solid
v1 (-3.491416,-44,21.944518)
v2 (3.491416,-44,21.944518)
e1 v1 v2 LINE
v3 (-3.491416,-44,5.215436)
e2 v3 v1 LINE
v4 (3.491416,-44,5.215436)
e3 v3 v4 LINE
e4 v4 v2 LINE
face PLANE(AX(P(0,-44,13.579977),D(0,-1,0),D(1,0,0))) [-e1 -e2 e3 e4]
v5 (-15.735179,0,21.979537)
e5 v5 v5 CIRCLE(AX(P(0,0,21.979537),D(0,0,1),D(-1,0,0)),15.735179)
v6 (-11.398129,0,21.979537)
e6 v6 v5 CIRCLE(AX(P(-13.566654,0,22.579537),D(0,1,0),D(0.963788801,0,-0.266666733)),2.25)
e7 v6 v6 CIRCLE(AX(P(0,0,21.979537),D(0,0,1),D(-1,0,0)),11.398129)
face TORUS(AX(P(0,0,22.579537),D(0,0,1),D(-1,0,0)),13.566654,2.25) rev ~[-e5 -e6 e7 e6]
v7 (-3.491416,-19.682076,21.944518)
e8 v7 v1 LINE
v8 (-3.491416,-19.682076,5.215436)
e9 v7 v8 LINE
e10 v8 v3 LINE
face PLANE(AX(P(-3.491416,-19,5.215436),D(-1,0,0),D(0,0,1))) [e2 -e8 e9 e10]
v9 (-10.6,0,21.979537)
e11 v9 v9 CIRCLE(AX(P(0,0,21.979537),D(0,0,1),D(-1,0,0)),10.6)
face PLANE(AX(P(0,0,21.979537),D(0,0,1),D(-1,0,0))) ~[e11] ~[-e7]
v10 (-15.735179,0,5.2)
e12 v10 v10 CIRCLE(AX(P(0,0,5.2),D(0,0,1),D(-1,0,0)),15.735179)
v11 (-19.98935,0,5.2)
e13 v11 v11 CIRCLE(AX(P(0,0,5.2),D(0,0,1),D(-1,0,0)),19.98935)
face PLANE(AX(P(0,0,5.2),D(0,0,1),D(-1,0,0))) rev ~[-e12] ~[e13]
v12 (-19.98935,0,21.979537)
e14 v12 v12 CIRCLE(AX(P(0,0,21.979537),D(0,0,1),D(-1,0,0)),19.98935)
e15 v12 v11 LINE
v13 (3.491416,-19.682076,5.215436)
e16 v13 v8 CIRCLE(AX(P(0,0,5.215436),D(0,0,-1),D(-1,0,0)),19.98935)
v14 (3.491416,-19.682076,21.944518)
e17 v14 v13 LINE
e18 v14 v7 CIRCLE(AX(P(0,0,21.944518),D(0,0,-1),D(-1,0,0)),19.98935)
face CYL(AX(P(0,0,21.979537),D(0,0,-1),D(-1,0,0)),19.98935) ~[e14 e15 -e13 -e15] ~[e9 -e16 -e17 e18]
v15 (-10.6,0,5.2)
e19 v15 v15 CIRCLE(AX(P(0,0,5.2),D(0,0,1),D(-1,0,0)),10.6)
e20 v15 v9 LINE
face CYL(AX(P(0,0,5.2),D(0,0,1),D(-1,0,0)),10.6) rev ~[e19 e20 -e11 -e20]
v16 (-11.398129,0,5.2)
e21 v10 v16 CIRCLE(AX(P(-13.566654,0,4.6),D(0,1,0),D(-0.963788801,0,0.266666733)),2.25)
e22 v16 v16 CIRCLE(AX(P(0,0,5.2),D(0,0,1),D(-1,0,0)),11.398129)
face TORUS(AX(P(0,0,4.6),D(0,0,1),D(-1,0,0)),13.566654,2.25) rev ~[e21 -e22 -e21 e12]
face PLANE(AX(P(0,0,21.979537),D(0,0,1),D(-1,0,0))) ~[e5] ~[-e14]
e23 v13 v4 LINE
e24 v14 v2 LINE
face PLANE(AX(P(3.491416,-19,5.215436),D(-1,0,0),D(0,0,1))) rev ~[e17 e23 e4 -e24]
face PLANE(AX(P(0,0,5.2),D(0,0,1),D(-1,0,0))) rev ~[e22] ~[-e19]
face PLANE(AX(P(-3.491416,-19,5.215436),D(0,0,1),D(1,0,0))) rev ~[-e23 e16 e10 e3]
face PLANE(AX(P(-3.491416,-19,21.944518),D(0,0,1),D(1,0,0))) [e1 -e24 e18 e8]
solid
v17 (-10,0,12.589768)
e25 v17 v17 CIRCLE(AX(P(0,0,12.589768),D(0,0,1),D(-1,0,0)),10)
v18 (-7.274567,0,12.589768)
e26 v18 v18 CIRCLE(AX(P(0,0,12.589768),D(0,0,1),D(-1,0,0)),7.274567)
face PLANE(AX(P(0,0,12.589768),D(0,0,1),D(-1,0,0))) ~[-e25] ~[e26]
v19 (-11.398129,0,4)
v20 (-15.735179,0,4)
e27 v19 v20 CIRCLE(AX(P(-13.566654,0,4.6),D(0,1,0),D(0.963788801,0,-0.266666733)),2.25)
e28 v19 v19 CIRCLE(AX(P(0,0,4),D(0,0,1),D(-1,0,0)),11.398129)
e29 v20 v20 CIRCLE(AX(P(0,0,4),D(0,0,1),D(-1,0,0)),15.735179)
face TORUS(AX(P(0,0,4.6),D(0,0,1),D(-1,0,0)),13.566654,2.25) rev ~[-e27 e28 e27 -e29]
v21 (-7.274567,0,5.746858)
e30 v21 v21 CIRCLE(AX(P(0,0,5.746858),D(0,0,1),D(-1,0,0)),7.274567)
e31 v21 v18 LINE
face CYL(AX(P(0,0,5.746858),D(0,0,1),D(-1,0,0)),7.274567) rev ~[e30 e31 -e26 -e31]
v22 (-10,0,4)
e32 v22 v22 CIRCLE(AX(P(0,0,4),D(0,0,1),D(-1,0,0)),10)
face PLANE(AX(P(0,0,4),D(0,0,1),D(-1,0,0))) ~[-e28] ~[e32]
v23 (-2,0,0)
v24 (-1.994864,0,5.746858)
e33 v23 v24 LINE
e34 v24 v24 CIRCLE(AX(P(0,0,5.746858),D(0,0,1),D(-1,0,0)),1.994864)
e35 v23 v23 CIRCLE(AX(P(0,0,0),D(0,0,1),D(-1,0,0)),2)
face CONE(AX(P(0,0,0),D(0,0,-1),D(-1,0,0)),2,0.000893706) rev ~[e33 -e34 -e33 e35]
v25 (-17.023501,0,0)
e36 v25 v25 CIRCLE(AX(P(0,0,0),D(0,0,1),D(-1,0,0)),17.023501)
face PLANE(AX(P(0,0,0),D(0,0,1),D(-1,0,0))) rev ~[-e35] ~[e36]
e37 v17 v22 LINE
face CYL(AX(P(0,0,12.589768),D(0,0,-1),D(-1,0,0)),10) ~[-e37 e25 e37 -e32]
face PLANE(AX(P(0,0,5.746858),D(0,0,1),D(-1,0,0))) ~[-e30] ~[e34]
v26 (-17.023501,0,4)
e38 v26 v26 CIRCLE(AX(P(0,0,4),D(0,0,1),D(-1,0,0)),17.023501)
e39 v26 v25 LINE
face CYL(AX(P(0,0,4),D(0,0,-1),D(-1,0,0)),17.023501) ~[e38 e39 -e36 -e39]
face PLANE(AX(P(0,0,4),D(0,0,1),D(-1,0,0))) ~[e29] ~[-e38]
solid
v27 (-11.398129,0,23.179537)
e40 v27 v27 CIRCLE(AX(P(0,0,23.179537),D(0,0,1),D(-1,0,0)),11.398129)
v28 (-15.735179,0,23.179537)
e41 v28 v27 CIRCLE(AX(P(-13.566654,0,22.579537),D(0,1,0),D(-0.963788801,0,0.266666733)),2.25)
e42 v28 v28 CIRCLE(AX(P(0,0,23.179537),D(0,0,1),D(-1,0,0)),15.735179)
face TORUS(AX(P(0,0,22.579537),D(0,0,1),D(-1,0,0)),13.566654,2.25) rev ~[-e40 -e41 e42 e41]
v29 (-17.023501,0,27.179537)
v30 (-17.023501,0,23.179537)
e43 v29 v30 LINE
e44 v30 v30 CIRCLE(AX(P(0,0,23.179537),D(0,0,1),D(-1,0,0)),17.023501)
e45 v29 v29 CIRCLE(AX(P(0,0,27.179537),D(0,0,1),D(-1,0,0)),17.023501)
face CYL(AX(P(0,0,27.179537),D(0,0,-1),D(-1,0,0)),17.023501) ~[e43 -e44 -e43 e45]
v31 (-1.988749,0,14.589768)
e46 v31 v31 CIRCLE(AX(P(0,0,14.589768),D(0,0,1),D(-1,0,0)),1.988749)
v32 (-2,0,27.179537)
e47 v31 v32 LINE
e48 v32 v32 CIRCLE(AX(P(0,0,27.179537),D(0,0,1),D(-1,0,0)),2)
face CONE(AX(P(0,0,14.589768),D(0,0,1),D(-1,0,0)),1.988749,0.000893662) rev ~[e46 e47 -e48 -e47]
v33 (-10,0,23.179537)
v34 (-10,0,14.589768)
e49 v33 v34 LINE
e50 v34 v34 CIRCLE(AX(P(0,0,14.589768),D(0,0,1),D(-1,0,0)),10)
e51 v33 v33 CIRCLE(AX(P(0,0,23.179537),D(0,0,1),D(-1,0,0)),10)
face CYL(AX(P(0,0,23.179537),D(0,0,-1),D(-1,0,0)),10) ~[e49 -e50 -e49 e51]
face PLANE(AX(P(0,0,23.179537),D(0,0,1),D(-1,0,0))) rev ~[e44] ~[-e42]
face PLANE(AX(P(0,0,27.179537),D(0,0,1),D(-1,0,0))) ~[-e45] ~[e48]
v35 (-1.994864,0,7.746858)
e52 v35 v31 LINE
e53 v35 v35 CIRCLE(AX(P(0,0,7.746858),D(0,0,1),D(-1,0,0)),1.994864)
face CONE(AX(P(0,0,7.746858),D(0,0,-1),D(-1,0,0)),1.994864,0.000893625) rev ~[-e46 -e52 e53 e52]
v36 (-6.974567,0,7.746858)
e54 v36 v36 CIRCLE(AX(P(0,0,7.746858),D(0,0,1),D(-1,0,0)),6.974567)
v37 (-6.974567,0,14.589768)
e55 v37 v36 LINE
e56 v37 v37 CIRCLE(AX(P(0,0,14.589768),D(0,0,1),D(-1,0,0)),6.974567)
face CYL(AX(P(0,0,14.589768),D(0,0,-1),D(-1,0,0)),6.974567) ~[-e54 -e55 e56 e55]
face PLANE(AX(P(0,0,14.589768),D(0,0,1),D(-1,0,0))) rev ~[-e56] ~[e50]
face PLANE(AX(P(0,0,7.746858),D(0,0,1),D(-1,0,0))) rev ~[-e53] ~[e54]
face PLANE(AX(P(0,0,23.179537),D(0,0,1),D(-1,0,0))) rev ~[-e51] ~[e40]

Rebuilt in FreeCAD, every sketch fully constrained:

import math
import FreeCAD as App
import Part
import Sketcher
from FreeCAD import Vector


def add_polygon(sketch, points):
    """Adds a closed chain of lines whose ends are joined by coincident constraints."""
    first, n = sketch.GeometryCount, len(points)
    for a, b in zip(points, points[1:] + points[:1]):
        sketch.addGeometry(Part.LineSegment(App.Vector(*a, 0), App.Vector(*b, 0)), False)
    for i in range(n):
        sketch.addConstraint(Sketcher.Constraint("Coincident", first + i, 2, first + (i + 1) % n, 1))

doc = App.newDocument("Part")
body = doc.addObject("PartDesign::Body", "Body")
body.AllowCompound = True

sketch1 = body.newObject("Sketcher::SketchObject", "Sketch")
sketch1.AttachmentSupport = (doc.getObject("XZ_Plane"), [""])
sketch1.MapMode = "FlatFace"
sketch1.addGeometry(Part.LineSegment(Vector(-10, 14.589768, 0), Vector(-6.974567, 14.589768, 0)), False)
sketch1.addGeometry(Part.LineSegment(Vector(-6.974567, 14.589768, 0), Vector(-6.974567, 7.746858, 0)), False)
sketch1.addGeometry(Part.LineSegment(Vector(-6.974567, 7.746858, 0), Vector(-1.994864, 7.746858, 0)), False)
sketch1.addGeometry(Part.LineSegment(Vector(-1.994864, 7.746858, 0), Vector(-1.988749, 14.589768, 0)), False)
sketch1.addGeometry(Part.LineSegment(Vector(-1.988749, 14.589768, 0), Vector(-2, 27.179537, 0)), False)
sketch1.addGeometry(Part.LineSegment(Vector(-2, 27.179537, 0), Vector(-17.023501, 27.179537, 0)), False)
sketch1.addGeometry(Part.LineSegment(Vector(-17.023501, 27.179537, 0), Vector(-17.023501, 23.179537, 0)), False)
sketch1.addGeometry(Part.LineSegment(Vector(-17.023501, 23.179537, 0), Vector(-15.735179, 23.179537, 0)), False)
sketch1.addGeometry(Part.ArcOfCircle(Part.Circle(Vector(-13.566654, 22.579537, 0), Vector(0, 0, 1), 2.25), math.radians(15.466014), math.radians(164.533986)), False)
sketch1.addGeometry(Part.LineSegment(Vector(-11.398129, 23.179537, 0), Vector(-10, 23.179537, 0)), False)
sketch1.addGeometry(Part.LineSegment(Vector(-10, 23.179537, 0), Vector(-10, 14.589768, 0)), False)
sketch1.addGeometry(Part.ArcOfCircle(Part.Circle(Vector(-13.566654, 4.6, 0), Vector(0, 0, 1), 2.25), math.radians(15.466014), math.radians(164.533986)), False)
sketch1.addGeometry(Part.LineSegment(Vector(-11.398129, 5.2, 0), Vector(-10.6, 5.2, 0)), False)
sketch1.addGeometry(Part.LineSegment(Vector(-10.6, 5.2, 0), Vector(-10.6, 21.979537, 0)), False)
sketch1.addGeometry(Part.LineSegment(Vector(-10.6, 21.979537, 0), Vector(-11.398129, 21.979537, 0)), False)
sketch1.addGeometry(Part.ArcOfCircle(Part.Circle(Vector(-13.566654, 22.579537, 0), Vector(0, 0, 1), 2.25), math.radians(-164.533986), math.radians(-15.466014)), False)
sketch1.addGeometry(Part.LineSegment(Vector(-15.735179, 21.979537, 0), Vector(-19.98935, 21.979537, 0)), False)
sketch1.addGeometry(Part.LineSegment(Vector(-19.98935, 21.979537, 0), Vector(-19.98935, 5.2, 0)), False)
sketch1.addGeometry(Part.LineSegment(Vector(-19.98935, 5.2, 0), Vector(-15.735179, 5.2, 0)), False)
sketch1.addGeometry(Part.LineSegment(Vector(-17.023501, 4, 0), Vector(-17.023501, 0, 0)), False)
sketch1.addGeometry(Part.LineSegment(Vector(-17.023501, 0, 0), Vector(-2, 0, 0)), False)
sketch1.addGeometry(Part.LineSegment(Vector(-2, 0, 0), Vector(-1.994864, 5.746858, 0)), False)
sketch1.addGeometry(Part.LineSegment(Vector(-1.994864, 5.746858, 0), Vector(-7.274567, 5.746858, 0)), False)
sketch1.addGeometry(Part.LineSegment(Vector(-7.274567, 5.746858, 0), Vector(-7.274567, 12.589768, 0)), False)
sketch1.addGeometry(Part.LineSegment(Vector(-7.274567, 12.589768, 0), Vector(-10, 12.589768, 0)), False)
sketch1.addGeometry(Part.LineSegment(Vector(-10, 12.589768, 0), Vector(-10, 4, 0)), False)
sketch1.addGeometry(Part.LineSegment(Vector(-10, 4, 0), Vector(-11.398129, 4, 0)), False)
sketch1.addGeometry(Part.ArcOfCircle(Part.Circle(Vector(-13.566654, 4.6, 0), Vector(0, 0, 1), 2.25), math.radians(-164.533986), math.radians(-15.466014)), False)
sketch1.addGeometry(Part.LineSegment(Vector(-15.735179, 4, 0), Vector(-17.023501, 4, 0)), False)
sketch1.addConstraint(Sketcher.Constraint("Coincident", 0, 2, 1, 1))
sketch1.addConstraint(Sketcher.Constraint("Coincident", 1, 2, 2, 1))
sketch1.addConstraint(Sketcher.Constraint("Coincident", 2, 2, 3, 1))
sketch1.addConstraint(Sketcher.Constraint("Coincident", 3, 2, 4, 1))
sketch1.addConstraint(Sketcher.Constraint("Coincident", 4, 2, 5, 1))
sketch1.addConstraint(Sketcher.Constraint("Coincident", 5, 2, 6, 1))
sketch1.addConstraint(Sketcher.Constraint("Coincident", 6, 2, 7, 1))
sketch1.addConstraint(Sketcher.Constraint("Coincident", 7, 2, 8, 2))
sketch1.addConstraint(Sketcher.Constraint("Coincident", 8, 1, 9, 1))
sketch1.addConstraint(Sketcher.Constraint("Coincident", 9, 2, 10, 1))
sketch1.addConstraint(Sketcher.Constraint("Coincident", 10, 2, 0, 1))
sketch1.addConstraint(Sketcher.Constraint("Coincident", 11, 1, 12, 1))
sketch1.addConstraint(Sketcher.Constraint("Coincident", 12, 2, 13, 1))
sketch1.addConstraint(Sketcher.Constraint("Coincident", 13, 2, 14, 1))
sketch1.addConstraint(Sketcher.Constraint("Coincident", 14, 2, 15, 2))
sketch1.addConstraint(Sketcher.Constraint("Coincident", 15, 1, 16, 1))
sketch1.addConstraint(Sketcher.Constraint("Coincident", 16, 2, 17, 1))
sketch1.addConstraint(Sketcher.Constraint("Coincident", 17, 2, 18, 1))
sketch1.addConstraint(Sketcher.Constraint("Coincident", 18, 2, 11, 2))
sketch1.addConstraint(Sketcher.Constraint("Coincident", 19, 2, 20, 1))
sketch1.addConstraint(Sketcher.Constraint("Coincident", 20, 2, 21, 1))
sketch1.addConstraint(Sketcher.Constraint("Coincident", 21, 2, 22, 1))
sketch1.addConstraint(Sketcher.Constraint("Coincident", 22, 2, 23, 1))
sketch1.addConstraint(Sketcher.Constraint("Coincident", 23, 2, 24, 1))
sketch1.addConstraint(Sketcher.Constraint("Coincident", 24, 2, 25, 1))
sketch1.addConstraint(Sketcher.Constraint("Coincident", 25, 2, 26, 1))
sketch1.addConstraint(Sketcher.Constraint("Coincident", 26, 2, 27, 2))
sketch1.addConstraint(Sketcher.Constraint("Coincident", 27, 1, 28, 1))
sketch1.addConstraint(Sketcher.Constraint("Coincident", 28, 2, 19, 1))
sketch1.addConstraint(Sketcher.Constraint("Horizontal", 0))
sketch1.addConstraint(Sketcher.Constraint("Vertical", 1))
sketch1.addConstraint(Sketcher.Constraint("Horizontal", 2))
sketch1.addConstraint(Sketcher.Constraint("Horizontal", 5))
sketch1.addConstraint(Sketcher.Constraint("Vertical", 6))
sketch1.addConstraint(Sketcher.Constraint("Horizontal", 7))
sketch1.addConstraint(Sketcher.Constraint("Horizontal", 9))
sketch1.addConstraint(Sketcher.Constraint("Vertical", 10))
sketch1.addConstraint(Sketcher.Constraint("Horizontal", 12))
sketch1.addConstraint(Sketcher.Constraint("Vertical", 13))
sketch1.addConstraint(Sketcher.Constraint("Horizontal", 14))
sketch1.addConstraint(Sketcher.Constraint("Horizontal", 16))
sketch1.addConstraint(Sketcher.Constraint("Vertical", 17))
sketch1.addConstraint(Sketcher.Constraint("Horizontal", 18))
sketch1.addConstraint(Sketcher.Constraint("Vertical", 19))
sketch1.addConstraint(Sketcher.Constraint("Horizontal", 20))
sketch1.addConstraint(Sketcher.Constraint("Horizontal", 22))
sketch1.addConstraint(Sketcher.Constraint("Vertical", 23))
sketch1.addConstraint(Sketcher.Constraint("Horizontal", 24))
sketch1.addConstraint(Sketcher.Constraint("Vertical", 25))
sketch1.addConstraint(Sketcher.Constraint("Horizontal", 26))
sketch1.addConstraint(Sketcher.Constraint("Horizontal", 28))
sketch1.addConstraint(Sketcher.Constraint("Coincident", 15, 3, 8, 3))
sketch1.addConstraint(Sketcher.Constraint("Coincident", 27, 3, 11, 3))
sketch1.addConstraint(Sketcher.Constraint("Equal", 8, 11))
sketch1.addConstraint(Sketcher.Constraint("Equal", 11, 15))
sketch1.addConstraint(Sketcher.Constraint("Equal", 15, 27))
sketch1.addConstraint(Sketcher.Constraint("PointOnObject", 19, 2, -1))
sketch1.addConstraint(Sketcher.Constraint("Parallel", 3, 21))
sketch1.addConstraint(Sketcher.Constraint("Horizontal", 0, 2, 3, 2))
sketch1.addConstraint(Sketcher.Constraint("Horizontal", 7, 2, 8, 1))
sketch1.addConstraint(Sketcher.Constraint("Horizontal", 14, 2, 15, 1))
sketch1.addConstraint(Sketcher.Constraint("Horizontal", 12, 2, 17, 2))
sketch1.addConstraint(Sketcher.Constraint("Horizontal", 26, 2, 27, 1))
sketch1.addConstraint(Sketcher.Constraint("Vertical", 8, 3, 11, 3))
sketch1.addConstraint(Sketcher.Constraint("Vertical", 8, 1, 11, 1))
sketch1.addConstraint(Sketcher.Constraint("Vertical", 11, 1, 14, 2))
sketch1.addConstraint(Sketcher.Constraint("Vertical", 6, 2, 19, 2))
sketch1.addConstraint(Sketcher.Constraint("Vertical", 4, 2, 20, 2))
sketch1.addConstraint(Sketcher.Constraint("Vertical", 2, 2, 21, 2))
sketch1.addConstraint(Sketcher.Constraint("Vertical", 10, 2, 24, 2))
sketch1.addConstraint(Sketcher.Constraint("Vertical", 14, 2, 26, 2))
sketch1.addConstraint(Sketcher.Constraint("Equal", 6, 19))
sketch1.addConstraint(Sketcher.Constraint("Equal", 1, 23))
sketch1.addConstraint(Sketcher.Constraint("Equal", 10, 25))
sketch1.addConstraint(Sketcher.Constraint("DistanceY", 6, 2, 6, 1, 4.0))
sketch1.addConstraint(Sketcher.Constraint("Radius", 8, 2.25))
sketch1.addConstraint(Sketcher.Constraint("DistanceX", 4, 2, -1, 1, 2.0))
sketch1.addConstraint(Sketcher.Constraint("DistanceX", 9, 2, -1, 1, 10.0))
sketch1.addConstraint(Sketcher.Constraint("DistanceY", 21, 2, 2, 2, 2.0))
sketch1.addConstraint(Sketcher.Constraint("DistanceY", -1, 1, 11, 3, 4.6))
sketch1.addConstraint(Sketcher.Constraint("DistanceX", 12, 2, -1, 1, 10.6))
sketch1.addConstraint(Sketcher.Constraint("DistanceX", 22, 2, 1, 2, 0.3))
sketch1.addConstraint(Sketcher.Constraint("DistanceX", 5, 2, 5, 1, 15.023501))
sketch1.addConstraint(Sketcher.Constraint("DistanceX", 7, 1, 7, 2, 1.288322))
sketch1.addConstraint(Sketcher.Constraint("DistanceX", 16, 2, 16, 1, 4.254171))
sketch1.addConstraint(Sketcher.Constraint("DistanceY", 1, 2, 1, 1, 6.84291))
sketch1.addConstraint(Sketcher.Constraint("DistanceY", 10, 2, 10, 1, 8.589769))
sketch1.addConstraint(Sketcher.Constraint("DistanceX", 0, 1, 0, 2, 3.025433))
sketch1.addConstraint(Sketcher.Constraint("DistanceX", 2, 1, 2, 2, 4.979703))
revolution = body.newObject("PartDesign::Revolution", "Revolution")
revolution.Profile = sketch1
revolution.ReferenceAxis = (sketch1, ["V_Axis"])
revolution.Angle = 360

sketch2 = body.newObject("Sketcher::SketchObject", "Sketch001")
sketch2.AttachmentSupport = (doc.getObject("XZ_Plane"), [""])
sketch2.MapMode = "FlatFace"
sketch2.AttachmentOffset = App.Placement(Vector(0, 0, 19), App.Rotation())
add_polygon(sketch2, [(-3.491416, 21.944518), (-3.491416, 5.215436), (3.491416, 5.215436), (3.491416, 21.944518)])
sketch2.addConstraint(Sketcher.Constraint("Vertical", 0))
sketch2.addConstraint(Sketcher.Constraint("Horizontal", 1))
sketch2.addConstraint(Sketcher.Constraint("Vertical", 2))
sketch2.addConstraint(Sketcher.Constraint("Horizontal", 3))
sketch2.addConstraint(Sketcher.Constraint("DistanceY", 0, 2, 0, 1, 16.729082))
sketch2.addConstraint(Sketcher.Constraint("DistanceX", 1, 1, 1, 2, 6.982832))
sketch2.addConstraint(Sketcher.Constraint("DistanceX", 0, 2, -1, 1, 3.491416))
sketch2.addConstraint(Sketcher.Constraint("DistanceY", -1, 1, 0, 2, 5.215436))
pad1 = body.newObject("PartDesign::Pad", "Pad")
pad1.Profile = sketch2
pad1.Length = 25

doc.recompute()
